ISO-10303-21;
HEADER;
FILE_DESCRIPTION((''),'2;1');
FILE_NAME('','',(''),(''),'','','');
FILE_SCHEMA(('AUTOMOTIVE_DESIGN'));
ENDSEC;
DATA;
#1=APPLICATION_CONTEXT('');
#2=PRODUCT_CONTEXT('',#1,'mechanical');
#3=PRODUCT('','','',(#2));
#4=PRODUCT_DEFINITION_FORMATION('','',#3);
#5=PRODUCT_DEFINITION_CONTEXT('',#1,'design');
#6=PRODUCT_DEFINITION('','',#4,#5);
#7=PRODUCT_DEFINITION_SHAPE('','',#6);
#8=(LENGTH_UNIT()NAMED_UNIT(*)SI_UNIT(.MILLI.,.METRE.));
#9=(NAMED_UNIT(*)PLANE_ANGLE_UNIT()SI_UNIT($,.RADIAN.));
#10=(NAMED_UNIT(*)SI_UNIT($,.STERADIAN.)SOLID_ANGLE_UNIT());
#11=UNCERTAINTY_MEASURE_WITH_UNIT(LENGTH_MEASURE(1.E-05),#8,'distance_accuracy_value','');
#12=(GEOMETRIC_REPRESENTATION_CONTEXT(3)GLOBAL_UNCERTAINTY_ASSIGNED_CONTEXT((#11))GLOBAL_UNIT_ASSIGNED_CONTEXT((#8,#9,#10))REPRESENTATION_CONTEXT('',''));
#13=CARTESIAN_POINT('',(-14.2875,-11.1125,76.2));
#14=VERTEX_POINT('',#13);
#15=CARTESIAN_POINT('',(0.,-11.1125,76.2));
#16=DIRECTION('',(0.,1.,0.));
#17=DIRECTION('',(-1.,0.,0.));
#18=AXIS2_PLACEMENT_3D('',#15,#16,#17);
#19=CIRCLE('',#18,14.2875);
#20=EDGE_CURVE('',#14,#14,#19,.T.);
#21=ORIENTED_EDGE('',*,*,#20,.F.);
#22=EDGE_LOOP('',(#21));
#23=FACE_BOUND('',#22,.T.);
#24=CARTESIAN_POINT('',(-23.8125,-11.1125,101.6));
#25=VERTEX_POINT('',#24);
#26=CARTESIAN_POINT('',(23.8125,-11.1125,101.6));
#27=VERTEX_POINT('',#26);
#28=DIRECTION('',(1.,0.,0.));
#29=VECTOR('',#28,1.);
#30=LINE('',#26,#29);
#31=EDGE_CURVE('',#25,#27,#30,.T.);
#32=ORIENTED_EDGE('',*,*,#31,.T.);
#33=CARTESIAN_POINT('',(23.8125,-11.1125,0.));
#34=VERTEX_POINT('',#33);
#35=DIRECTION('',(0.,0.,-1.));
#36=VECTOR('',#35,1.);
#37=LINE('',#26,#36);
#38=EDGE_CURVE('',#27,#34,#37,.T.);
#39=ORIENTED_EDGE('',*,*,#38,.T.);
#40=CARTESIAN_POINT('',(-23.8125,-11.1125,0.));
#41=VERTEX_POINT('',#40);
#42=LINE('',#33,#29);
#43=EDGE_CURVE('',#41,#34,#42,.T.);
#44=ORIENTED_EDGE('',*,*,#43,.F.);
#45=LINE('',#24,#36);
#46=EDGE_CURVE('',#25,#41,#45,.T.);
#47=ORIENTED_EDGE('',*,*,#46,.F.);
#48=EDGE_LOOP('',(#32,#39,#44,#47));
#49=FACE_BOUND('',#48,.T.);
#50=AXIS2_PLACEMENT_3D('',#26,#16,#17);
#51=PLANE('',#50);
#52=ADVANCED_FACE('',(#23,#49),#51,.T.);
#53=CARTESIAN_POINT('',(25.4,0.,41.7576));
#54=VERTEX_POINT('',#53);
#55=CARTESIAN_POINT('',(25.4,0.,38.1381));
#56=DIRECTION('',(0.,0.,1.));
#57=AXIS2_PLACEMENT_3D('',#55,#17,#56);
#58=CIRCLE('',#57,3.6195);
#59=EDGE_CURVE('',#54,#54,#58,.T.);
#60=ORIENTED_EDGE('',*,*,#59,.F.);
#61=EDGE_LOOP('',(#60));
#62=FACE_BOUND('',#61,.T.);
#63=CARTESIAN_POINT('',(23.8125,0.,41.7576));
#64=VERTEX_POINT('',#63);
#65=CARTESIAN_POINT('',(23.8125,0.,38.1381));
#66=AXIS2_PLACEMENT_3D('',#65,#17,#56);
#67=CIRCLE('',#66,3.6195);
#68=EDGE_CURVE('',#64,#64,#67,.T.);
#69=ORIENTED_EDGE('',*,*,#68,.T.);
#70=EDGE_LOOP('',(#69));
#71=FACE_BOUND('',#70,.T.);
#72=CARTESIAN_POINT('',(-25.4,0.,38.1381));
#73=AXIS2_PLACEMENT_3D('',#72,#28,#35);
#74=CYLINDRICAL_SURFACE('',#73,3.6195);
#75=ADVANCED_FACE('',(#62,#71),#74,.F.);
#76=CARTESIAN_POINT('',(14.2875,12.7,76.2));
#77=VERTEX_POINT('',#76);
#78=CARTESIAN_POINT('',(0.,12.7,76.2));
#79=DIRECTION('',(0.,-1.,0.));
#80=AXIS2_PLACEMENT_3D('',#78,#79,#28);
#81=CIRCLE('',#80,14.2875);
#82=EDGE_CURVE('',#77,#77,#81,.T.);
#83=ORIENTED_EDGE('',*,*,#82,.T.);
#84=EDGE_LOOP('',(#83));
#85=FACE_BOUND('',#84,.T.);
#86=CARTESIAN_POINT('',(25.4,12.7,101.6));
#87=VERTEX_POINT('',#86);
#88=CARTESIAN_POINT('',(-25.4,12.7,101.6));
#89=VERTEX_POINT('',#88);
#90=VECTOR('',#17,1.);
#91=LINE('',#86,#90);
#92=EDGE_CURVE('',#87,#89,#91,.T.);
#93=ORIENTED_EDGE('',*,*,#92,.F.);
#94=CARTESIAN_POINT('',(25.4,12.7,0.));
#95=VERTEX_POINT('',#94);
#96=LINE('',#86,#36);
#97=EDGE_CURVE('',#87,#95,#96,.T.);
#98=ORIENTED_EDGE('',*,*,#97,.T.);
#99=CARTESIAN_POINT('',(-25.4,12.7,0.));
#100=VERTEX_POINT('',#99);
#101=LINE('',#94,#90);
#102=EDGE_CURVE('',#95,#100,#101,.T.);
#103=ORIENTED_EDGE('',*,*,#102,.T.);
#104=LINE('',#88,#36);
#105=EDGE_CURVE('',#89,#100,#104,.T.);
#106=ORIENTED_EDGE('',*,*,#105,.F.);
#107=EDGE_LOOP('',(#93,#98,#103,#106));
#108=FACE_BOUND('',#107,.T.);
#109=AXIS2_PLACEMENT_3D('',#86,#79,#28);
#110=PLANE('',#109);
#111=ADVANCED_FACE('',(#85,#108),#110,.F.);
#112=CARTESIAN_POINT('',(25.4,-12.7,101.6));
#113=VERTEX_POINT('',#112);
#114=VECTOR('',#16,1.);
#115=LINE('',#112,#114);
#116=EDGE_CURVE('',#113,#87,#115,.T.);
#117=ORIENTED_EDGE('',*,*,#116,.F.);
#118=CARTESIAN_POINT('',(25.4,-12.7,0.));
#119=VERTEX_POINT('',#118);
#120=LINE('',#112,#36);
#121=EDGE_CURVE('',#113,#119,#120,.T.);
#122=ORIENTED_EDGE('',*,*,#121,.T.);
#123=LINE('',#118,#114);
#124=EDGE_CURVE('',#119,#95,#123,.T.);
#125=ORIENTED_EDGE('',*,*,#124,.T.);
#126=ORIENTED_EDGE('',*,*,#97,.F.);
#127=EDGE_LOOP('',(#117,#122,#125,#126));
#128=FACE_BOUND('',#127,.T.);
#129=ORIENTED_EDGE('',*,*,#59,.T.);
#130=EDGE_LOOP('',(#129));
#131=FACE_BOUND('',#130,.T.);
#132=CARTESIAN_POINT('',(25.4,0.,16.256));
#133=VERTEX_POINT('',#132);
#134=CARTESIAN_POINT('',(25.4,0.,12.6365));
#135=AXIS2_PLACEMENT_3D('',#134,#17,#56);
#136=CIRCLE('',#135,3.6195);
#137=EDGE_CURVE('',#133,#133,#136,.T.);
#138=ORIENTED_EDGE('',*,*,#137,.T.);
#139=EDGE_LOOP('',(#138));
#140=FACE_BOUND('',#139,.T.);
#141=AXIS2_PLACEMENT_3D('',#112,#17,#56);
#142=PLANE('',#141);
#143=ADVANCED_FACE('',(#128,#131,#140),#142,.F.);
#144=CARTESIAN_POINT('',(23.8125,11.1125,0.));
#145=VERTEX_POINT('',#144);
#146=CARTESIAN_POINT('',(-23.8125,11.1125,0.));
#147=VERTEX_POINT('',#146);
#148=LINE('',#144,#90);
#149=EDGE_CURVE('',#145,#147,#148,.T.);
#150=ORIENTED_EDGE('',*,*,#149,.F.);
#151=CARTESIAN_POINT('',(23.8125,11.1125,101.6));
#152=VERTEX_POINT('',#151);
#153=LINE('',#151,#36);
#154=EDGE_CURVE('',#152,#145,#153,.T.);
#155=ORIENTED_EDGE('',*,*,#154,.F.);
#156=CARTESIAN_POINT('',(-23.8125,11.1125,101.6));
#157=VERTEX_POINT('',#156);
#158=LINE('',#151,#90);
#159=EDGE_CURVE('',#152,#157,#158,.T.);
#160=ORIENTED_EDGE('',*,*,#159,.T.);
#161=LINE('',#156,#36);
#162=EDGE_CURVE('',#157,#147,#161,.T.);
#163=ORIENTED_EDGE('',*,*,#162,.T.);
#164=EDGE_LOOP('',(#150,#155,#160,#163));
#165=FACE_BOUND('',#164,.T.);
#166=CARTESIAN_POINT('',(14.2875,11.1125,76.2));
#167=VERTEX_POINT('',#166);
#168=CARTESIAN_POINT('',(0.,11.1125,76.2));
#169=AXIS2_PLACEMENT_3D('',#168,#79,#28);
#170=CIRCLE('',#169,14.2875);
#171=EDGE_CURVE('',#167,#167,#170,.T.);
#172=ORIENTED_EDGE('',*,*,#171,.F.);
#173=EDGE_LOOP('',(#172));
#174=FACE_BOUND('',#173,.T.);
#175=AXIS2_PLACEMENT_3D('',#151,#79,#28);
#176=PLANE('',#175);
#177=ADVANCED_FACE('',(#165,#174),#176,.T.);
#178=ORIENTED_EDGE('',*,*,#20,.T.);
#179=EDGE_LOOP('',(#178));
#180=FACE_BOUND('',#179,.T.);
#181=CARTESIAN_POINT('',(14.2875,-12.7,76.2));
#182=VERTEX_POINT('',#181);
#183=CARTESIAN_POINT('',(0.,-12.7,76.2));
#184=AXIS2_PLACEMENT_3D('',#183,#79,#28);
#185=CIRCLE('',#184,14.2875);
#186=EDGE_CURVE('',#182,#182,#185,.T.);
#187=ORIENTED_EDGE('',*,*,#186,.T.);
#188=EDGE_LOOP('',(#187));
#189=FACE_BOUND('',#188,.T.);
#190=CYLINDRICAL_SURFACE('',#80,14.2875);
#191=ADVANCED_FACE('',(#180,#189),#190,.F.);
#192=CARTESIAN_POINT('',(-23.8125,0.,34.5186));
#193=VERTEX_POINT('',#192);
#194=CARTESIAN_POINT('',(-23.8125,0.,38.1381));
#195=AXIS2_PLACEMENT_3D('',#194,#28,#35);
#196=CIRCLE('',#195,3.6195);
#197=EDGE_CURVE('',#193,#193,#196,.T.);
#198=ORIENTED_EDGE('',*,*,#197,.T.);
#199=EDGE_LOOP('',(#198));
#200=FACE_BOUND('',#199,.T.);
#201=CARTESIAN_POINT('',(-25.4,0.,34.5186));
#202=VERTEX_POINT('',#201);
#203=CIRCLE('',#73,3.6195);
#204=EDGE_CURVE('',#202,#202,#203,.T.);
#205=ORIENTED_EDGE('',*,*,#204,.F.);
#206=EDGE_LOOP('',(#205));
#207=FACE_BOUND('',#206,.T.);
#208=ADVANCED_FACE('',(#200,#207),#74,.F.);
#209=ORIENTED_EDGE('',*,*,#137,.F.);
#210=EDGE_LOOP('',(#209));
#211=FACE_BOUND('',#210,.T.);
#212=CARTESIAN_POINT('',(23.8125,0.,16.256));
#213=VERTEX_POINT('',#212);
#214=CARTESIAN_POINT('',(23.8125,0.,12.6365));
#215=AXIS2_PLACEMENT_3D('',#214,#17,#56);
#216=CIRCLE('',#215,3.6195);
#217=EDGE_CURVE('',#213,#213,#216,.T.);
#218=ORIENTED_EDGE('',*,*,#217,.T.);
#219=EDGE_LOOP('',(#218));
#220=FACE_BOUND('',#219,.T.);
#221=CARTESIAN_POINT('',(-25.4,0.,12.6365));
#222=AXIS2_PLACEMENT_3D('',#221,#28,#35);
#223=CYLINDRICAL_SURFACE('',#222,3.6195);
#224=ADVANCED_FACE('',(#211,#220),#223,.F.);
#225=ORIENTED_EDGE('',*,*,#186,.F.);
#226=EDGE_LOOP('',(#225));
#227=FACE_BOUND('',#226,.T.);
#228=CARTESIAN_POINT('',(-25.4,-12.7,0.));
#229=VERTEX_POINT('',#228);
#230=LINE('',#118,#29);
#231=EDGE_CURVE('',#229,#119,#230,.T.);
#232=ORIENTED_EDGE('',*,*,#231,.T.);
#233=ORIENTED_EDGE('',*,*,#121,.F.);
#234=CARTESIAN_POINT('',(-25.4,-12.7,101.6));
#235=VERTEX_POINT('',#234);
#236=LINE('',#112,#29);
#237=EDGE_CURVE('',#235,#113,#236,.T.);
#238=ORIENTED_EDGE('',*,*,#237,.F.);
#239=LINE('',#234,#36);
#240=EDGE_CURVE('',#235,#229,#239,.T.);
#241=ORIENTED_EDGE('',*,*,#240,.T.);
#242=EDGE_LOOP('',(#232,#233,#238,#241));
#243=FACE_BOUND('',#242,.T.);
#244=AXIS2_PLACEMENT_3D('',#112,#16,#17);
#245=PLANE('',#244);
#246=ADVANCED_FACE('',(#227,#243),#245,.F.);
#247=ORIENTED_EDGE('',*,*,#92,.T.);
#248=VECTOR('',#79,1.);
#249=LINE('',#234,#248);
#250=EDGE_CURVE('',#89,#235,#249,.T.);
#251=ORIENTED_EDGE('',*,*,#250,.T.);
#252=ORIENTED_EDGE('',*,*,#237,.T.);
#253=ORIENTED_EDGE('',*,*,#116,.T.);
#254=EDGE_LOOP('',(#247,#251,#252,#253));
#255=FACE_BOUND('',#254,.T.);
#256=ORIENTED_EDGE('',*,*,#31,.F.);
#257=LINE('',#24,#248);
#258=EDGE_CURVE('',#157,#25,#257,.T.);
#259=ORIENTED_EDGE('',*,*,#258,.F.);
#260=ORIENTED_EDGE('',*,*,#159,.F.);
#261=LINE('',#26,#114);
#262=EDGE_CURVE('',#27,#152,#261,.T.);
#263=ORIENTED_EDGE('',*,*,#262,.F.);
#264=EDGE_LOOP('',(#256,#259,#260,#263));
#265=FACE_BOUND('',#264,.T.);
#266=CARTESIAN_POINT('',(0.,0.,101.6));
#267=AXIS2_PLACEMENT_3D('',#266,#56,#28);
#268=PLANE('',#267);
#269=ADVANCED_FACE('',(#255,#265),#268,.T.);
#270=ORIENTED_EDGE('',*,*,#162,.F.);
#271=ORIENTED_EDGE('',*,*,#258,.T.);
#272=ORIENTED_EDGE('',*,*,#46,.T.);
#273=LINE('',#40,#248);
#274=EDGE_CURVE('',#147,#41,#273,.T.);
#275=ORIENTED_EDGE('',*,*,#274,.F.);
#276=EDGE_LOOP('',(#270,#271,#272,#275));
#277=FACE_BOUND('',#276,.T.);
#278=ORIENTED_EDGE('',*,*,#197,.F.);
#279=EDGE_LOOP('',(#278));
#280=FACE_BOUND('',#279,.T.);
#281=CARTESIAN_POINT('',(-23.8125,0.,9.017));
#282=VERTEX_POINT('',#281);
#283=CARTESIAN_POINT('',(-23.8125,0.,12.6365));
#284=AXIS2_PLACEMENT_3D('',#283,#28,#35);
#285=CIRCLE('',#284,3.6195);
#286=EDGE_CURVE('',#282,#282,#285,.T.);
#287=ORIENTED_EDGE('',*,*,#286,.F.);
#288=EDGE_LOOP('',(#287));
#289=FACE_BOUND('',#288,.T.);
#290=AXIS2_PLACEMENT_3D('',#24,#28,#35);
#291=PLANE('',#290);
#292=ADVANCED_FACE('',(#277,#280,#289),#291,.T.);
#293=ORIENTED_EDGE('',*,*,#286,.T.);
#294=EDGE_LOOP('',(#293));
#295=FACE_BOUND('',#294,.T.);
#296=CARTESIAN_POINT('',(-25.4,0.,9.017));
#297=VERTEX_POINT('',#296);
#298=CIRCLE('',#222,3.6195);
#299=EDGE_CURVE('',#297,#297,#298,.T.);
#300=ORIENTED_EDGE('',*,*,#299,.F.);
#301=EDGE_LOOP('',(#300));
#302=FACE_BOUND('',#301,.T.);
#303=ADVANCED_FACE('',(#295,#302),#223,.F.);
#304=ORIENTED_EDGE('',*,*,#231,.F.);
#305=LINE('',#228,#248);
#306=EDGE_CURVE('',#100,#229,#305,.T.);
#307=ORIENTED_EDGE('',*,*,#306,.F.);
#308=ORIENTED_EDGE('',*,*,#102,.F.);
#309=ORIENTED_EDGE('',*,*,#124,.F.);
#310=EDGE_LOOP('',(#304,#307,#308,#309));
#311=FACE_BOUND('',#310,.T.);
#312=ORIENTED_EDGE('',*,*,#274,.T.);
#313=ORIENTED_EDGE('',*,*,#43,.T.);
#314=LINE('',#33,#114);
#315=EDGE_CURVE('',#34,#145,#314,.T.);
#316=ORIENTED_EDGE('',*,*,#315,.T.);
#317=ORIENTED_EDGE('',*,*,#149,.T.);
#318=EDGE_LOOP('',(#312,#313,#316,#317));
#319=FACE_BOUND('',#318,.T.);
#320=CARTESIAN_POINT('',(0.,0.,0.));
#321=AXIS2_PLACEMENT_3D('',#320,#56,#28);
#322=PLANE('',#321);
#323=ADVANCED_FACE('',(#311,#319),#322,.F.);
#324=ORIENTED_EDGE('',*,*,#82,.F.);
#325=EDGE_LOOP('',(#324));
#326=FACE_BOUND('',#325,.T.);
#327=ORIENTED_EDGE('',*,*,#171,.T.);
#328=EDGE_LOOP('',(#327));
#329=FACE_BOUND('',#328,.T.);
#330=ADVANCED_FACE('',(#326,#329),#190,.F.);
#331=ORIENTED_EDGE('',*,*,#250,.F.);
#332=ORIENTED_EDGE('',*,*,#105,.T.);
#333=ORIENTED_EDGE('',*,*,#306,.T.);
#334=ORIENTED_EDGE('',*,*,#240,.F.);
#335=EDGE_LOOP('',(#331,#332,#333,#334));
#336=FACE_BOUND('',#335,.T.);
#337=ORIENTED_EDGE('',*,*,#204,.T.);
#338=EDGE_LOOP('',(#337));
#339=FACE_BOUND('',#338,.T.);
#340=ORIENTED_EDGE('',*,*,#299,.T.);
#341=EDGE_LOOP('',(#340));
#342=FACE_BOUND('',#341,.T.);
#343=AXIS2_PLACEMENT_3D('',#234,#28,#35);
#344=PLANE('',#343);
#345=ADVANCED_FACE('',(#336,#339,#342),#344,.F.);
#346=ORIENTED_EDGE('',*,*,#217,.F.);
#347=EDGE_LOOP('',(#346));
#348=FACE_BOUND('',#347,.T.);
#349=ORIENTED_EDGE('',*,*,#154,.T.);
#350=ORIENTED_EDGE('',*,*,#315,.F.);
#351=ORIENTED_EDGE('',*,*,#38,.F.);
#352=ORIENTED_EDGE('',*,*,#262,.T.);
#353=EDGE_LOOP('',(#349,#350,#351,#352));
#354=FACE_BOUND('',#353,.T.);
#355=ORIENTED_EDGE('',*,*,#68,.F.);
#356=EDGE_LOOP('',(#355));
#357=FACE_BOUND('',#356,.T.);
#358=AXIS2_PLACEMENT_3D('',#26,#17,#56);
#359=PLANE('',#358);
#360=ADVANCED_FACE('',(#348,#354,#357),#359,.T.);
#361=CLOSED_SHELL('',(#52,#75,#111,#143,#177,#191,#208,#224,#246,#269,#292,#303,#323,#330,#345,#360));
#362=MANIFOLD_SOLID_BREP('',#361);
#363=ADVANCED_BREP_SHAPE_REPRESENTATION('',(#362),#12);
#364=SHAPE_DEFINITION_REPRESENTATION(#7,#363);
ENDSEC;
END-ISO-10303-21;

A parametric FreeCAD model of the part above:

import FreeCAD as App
import Part
import Sketcher
Q = App.Units.Quantity


def add_polygon(sketch, points):
    """Adds a closed chain of lines whose ends are joined by coincident constraints."""
    first, n = sketch.GeometryCount, len(points)
    for a, b in zip(points, points[1:] + points[:1]):
        sketch.addGeometry(Part.LineSegment(App.Vector(*a, 0), App.Vector(*b, 0)), False)
    for i in range(n):
        sketch.addConstraint(Sketcher.Constraint("Coincident", first + i, 2, first + (i + 1) % n, 1))

doc = App.newDocument("Part")
body = doc.addObject("PartDesign::Body", "Body")

# Sketch on XY plane
sketch1 = body.newObject("Sketcher::SketchObject", "Sketch")
sketch1.AttachmentSupport = (doc.getObject("XY_Plane"), [""])
sketch1.MapMode = "FlatFace"
add_polygon(sketch1, [(-25, 13), (-25, -13), (25, -13), (25, 13)])  # lines 0-3
add_polygon(sketch1, [(24, -11), (-24, -11), (-24, 11), (24, 11)])  # lines 4-7
sketch1.addConstraint([
    Sketcher.Constraint("Vertical", 0),
    Sketcher.Constraint("Horizontal", 1),
    Sketcher.Constraint("Vertical", 2),
    Sketcher.Constraint("Horizontal", 3),
    Sketcher.Constraint("Horizontal", 4),
    Sketcher.Constraint("Vertical", 5),
    Sketcher.Constraint("Horizontal", 6),
    Sketcher.Constraint("Vertical", 7),
    Sketcher.Constraint("Symmetric", 0, 2, 2, 2, -1, 1),
    Sketcher.Constraint("Symmetric", 4, 2, 6, 2, -1, 1),
    Sketcher.Constraint("DistanceX", 1, 1, 1, 2, Q("2 in")),
    Sketcher.Constraint("DistanceY", 0, 2, 0, 1, Q("1 in")),
    Sketcher.Constraint("DistanceX", 4, 2, 4, 1, Q("1.875 in")),
    Sketcher.Constraint("DistanceY", 5, 1, 5, 2, Q("0.875 in")),
])
pad1 = body.newObject("PartDesign::Pad", "Pad")
pad1.Profile = sketch1
pad1.Length = Q("4 in")

# Sketch on XZ plane
sketch2 = body.newObject("Sketcher::SketchObject", "Sketch001")
sketch2.AttachmentSupport = (doc.getObject("XZ_Plane"), [""])
sketch2.MapMode = "FlatFace"
sketch2.AttachmentOffset = App.Placement(App.Vector(0, 0, 0.5 * 25.4), App.Rotation())
sketch2.addGeometry(Part.Circle(App.Vector(0, 76, 0), App.Vector(0, 0, 1), 14), False)
sketch2.addConstraint([
    Sketcher.Constraint("PointOnObject", 0, 3, -2),
    Sketcher.Constraint("Diameter", 0, Q("1.125 in")),
    Sketcher.Constraint("DistanceY", -1, 1, 0, 3, Q("3 in")),
])
pocket1 = body.newObject("PartDesign::Pocket", "Pocket")
pocket1.Profile = sketch2
pocket1.Type = "ThroughAll"

# Sketch on YZ plane
sketch3 = body.newObject("Sketcher::SketchObject", "Sketch002")
sketch3.AttachmentSupport = (doc.getObject("YZ_Plane"), [""])
sketch3.MapMode = "FlatFace"
sketch3.AttachmentOffset = App.Placement(App.Vector(0, 0, 1 * 25.4), App.Rotation())
sketch3.addGeometry([
    Part.Circle(App.Vector(0, 38.1, 0), App.Vector(0, 0, 1), 3.6),
    Part.Circle(App.Vector(0, 12.6, 0), App.Vector(0, 0, 1), 3.6),
], False)
sketch3.addConstraint([
    Sketcher.Constraint("Equal", 0, 1),
    Sketcher.Constraint("PointOnObject", 0, 3, -2),
    Sketcher.Constraint("PointOnObject", 1, 3, -2),
    Sketcher.Constraint("Diameter", 0, Q("0.285 in")),
    Sketcher.Constraint("DistanceY", 1, 3, 0, 3, Q("1.004 in")),
    Sketcher.Constraint("DistanceY", -1, 1, 0, 3, Q("1.5015 in")),
])
pocket2 = body.newObject("PartDesign::Pocket", "Pocket001")
pocket2.Profile = sketch3
pocket2.Type = "ThroughAll"
pocket2.Midplane = True

doc.recompute()
